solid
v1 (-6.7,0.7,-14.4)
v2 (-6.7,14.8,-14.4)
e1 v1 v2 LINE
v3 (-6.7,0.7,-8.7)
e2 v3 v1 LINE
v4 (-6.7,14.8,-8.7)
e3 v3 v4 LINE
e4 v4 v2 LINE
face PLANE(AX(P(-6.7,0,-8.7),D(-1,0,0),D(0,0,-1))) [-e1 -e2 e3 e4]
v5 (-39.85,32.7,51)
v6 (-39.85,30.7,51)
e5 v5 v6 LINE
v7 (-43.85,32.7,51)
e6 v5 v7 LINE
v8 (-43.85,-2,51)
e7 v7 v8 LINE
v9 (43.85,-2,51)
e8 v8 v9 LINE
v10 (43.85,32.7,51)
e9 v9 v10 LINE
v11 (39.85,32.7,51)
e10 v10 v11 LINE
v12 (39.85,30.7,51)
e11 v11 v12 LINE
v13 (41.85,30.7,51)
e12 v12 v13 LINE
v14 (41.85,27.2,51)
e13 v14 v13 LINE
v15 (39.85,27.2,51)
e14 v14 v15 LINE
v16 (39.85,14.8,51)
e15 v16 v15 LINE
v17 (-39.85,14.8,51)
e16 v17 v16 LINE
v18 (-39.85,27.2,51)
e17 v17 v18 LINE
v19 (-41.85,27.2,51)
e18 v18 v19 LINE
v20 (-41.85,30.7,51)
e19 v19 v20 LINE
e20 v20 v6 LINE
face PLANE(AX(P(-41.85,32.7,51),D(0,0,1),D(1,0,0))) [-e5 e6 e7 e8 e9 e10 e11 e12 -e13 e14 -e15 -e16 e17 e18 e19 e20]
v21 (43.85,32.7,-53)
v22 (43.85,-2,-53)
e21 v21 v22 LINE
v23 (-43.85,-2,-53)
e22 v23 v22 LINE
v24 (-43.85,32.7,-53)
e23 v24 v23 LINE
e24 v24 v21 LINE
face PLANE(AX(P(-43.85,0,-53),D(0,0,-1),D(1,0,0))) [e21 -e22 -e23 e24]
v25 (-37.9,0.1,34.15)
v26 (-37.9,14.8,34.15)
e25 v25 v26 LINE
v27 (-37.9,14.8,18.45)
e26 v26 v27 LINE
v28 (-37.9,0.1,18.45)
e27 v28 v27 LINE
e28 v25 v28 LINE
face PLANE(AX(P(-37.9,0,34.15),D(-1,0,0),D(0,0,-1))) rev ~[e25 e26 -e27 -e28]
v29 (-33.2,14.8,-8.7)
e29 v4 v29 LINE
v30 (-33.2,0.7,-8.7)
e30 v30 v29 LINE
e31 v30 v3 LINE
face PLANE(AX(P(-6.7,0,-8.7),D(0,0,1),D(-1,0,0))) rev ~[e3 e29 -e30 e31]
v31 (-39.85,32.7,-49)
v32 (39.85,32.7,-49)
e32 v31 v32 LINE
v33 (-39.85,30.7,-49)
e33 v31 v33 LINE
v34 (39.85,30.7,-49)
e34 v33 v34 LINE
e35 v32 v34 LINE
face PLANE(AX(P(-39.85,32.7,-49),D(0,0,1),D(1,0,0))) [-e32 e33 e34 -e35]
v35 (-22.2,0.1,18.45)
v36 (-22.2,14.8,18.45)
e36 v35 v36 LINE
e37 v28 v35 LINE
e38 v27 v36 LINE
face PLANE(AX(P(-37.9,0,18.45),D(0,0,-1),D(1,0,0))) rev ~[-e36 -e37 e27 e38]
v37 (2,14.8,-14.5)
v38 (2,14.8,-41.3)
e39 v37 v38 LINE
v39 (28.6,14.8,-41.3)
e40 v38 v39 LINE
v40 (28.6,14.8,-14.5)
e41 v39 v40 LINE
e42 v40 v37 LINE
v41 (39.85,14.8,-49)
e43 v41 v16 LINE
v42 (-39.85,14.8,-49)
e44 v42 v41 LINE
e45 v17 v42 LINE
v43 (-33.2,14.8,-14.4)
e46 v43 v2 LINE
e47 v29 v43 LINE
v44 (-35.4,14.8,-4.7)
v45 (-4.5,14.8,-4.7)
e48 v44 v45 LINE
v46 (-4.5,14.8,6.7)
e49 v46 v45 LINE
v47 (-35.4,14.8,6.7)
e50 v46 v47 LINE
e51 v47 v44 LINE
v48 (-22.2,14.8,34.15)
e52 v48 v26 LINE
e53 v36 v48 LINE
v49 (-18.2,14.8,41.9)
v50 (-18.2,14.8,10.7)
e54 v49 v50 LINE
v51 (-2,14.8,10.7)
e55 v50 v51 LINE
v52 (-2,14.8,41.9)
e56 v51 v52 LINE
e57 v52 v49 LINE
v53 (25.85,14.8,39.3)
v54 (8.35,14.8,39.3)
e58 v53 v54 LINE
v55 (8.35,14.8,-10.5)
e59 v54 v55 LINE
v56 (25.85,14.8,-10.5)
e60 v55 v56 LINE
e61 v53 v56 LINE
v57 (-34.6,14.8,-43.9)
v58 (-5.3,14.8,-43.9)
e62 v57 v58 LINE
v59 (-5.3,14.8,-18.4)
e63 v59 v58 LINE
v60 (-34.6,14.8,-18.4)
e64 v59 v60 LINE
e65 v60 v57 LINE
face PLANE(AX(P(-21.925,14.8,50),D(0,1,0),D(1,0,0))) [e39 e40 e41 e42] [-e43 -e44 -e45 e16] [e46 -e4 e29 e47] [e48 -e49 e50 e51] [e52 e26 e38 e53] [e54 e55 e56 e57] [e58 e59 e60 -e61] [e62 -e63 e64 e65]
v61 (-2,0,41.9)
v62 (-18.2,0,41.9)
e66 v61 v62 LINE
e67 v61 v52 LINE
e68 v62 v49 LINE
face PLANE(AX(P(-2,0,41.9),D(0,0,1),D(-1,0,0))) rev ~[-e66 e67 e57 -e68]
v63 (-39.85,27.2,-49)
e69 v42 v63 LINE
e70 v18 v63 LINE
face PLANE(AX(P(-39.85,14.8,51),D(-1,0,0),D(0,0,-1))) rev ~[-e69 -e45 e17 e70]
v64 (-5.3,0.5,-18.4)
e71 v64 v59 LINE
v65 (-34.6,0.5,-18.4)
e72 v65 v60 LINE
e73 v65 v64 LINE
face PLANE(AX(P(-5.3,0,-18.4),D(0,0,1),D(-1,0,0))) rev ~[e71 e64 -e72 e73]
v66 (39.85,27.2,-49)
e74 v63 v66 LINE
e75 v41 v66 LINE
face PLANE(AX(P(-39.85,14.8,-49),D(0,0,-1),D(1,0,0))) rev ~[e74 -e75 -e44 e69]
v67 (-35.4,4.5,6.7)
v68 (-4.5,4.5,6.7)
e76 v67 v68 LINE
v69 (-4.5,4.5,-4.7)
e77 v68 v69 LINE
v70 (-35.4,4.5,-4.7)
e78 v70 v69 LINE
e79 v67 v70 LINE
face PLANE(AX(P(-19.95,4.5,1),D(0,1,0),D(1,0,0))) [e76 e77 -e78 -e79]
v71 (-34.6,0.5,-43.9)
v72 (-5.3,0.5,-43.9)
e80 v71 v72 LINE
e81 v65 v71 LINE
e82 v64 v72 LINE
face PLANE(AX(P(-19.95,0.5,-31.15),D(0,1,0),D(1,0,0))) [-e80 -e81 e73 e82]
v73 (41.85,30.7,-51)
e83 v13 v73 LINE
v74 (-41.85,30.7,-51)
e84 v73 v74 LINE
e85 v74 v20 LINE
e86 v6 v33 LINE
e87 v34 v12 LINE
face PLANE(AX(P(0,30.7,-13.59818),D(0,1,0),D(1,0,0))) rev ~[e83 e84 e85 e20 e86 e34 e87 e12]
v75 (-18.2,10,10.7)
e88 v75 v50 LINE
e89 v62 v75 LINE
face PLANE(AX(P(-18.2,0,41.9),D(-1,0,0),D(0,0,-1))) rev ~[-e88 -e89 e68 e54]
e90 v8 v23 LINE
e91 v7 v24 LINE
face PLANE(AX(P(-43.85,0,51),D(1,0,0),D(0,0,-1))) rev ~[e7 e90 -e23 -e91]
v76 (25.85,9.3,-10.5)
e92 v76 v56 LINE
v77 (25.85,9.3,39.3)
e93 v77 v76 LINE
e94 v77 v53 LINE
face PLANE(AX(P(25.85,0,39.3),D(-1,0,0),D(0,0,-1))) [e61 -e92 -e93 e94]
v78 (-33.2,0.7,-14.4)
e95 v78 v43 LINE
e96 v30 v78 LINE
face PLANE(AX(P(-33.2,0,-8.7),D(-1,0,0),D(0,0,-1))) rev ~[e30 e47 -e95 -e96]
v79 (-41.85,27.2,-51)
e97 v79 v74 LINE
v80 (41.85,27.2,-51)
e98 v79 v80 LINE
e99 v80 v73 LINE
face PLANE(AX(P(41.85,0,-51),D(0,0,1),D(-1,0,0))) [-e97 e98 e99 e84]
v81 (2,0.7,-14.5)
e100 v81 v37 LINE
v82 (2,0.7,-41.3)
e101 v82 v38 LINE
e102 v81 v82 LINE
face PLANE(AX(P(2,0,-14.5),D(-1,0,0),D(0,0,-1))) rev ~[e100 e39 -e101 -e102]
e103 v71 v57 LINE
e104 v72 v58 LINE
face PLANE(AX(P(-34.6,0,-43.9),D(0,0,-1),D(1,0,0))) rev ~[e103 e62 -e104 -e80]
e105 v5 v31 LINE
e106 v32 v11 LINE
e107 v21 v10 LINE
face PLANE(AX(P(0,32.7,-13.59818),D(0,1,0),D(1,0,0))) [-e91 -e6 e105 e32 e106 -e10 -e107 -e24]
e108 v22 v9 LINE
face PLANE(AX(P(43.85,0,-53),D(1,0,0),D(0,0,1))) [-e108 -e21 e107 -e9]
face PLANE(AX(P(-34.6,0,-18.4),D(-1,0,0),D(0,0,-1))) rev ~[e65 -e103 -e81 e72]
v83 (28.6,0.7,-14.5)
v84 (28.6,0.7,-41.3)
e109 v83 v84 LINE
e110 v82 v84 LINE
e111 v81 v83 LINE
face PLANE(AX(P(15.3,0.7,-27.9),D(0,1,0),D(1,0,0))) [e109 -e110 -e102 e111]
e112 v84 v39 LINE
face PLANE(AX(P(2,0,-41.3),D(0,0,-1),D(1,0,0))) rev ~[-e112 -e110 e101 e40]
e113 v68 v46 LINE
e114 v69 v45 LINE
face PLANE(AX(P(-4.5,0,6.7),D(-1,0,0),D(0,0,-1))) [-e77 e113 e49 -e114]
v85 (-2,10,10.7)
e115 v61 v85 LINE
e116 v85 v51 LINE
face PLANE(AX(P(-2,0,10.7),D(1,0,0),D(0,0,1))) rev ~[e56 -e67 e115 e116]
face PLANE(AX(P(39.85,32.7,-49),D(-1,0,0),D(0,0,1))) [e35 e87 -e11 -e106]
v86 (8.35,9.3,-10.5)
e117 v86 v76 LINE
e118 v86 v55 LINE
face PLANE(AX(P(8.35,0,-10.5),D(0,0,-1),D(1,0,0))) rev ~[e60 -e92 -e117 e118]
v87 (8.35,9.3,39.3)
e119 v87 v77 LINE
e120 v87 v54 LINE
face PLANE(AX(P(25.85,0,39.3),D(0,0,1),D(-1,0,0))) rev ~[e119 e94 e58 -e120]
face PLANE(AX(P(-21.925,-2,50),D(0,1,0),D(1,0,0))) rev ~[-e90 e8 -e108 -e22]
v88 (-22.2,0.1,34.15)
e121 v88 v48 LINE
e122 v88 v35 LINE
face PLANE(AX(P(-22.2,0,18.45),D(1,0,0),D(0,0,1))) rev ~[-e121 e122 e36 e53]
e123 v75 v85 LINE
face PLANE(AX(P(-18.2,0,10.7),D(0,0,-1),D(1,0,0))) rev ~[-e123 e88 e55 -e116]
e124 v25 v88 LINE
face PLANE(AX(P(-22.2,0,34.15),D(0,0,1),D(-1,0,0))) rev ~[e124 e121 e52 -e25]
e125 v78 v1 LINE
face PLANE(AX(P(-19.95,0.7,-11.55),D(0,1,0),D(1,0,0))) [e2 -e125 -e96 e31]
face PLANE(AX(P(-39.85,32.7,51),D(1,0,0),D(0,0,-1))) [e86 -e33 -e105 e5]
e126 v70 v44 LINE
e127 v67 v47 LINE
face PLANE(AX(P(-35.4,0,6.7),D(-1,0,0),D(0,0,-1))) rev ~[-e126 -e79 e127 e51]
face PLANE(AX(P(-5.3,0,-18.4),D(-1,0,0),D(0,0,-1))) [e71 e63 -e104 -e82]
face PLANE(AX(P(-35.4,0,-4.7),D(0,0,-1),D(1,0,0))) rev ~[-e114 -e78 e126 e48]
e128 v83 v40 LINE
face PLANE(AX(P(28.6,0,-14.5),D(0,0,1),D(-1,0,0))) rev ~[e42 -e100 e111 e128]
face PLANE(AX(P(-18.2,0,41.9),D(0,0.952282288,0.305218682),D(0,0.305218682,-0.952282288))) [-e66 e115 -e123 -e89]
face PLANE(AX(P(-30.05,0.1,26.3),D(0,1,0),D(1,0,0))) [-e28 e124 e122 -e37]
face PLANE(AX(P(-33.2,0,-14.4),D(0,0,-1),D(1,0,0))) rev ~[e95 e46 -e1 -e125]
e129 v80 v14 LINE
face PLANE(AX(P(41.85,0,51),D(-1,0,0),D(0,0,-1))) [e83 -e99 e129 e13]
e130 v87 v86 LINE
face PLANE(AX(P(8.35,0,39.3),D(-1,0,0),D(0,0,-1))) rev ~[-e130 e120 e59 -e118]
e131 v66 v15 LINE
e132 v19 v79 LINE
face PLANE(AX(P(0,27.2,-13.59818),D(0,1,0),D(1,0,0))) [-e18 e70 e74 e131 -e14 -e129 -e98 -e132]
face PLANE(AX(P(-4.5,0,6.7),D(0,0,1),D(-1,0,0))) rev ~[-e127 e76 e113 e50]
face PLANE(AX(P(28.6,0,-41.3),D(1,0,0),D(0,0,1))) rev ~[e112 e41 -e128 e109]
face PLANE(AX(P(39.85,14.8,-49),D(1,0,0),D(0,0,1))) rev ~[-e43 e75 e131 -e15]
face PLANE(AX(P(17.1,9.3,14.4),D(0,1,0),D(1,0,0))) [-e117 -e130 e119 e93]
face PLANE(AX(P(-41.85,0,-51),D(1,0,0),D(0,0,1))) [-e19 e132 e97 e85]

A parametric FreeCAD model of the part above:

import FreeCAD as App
import Part
import Sketcher

V = App.Vector

doc = App.newDocument("Part")
body = doc.addObject("PartDesign::Body", "Body")

# Sketch on XZ plane
sketch1 = doc.addObject("Sketcher::SketchObject", "Sketch")
body.addObject(sketch1)
sketch1.AttachmentSupport = (doc.XZ_Plane, [""])
sketch1.MapMode = "FlatFace"
sketch1.addGeometry(Part.LineSegment(V(-33.2, -14.4, 0), V(-33.2, -8.7, 0)), False)
sketch1.addGeometry(Part.LineSegment(V(-33.2, -8.7, 0), V(-6.7, -8.7, 0)), False)
sketch1.addGeometry(Part.LineSegment(V(-6.7, -8.7, 0), V(-6.7, -14.4, 0)), False)
sketch1.addGeometry(Part.LineSegment(V(-6.7, -14.4, 0), V(-33.2, -14.4, 0)), False)
sketch1.addConstraint(Sketcher.Constraint("Coincident", 0, 2, 1, 1))
sketch1.addConstraint(Sketcher.Constraint("Coincident", 1, 2, 2, 1))
sketch1.addConstraint(Sketcher.Constraint("Coincident", 2, 2, 3, 1))
sketch1.addConstraint(Sketcher.Constraint("Coincident", 3, 2, 0, 1))
sketch1.addConstraint(Sketcher.Constraint("Vertical", 0))
sketch1.addConstraint(Sketcher.Constraint("Horizontal", 1))
sketch1.addConstraint(Sketcher.Constraint("Vertical", 2))
sketch1.addConstraint(Sketcher.Constraint("Horizontal", 3))
sketch1.addConstraint(Sketcher.Constraint("DistanceX", 1, 1, 1, 2, 26.5))
sketch1.addConstraint(Sketcher.Constraint("DistanceY", 0, 1, 0, 2, 5.7))
sketch1.addConstraint(Sketcher.Constraint("DistanceX", 0, 2, -1, 1, 33.2))
sketch1.addConstraint(Sketcher.Constraint("DistanceY", 0, 2, -1, 1, 8.7))
pad1 = doc.addObject("PartDesign::Pad", "Pad")
body.addObject(pad1)
pad1.Profile = sketch1
pad1.Length = 0.7
pad1.Reversed = True
body2 = doc.addObject("PartDesign::Body", "Body001")

# Sketch on XZ plane
sketch2 = doc.addObject("Sketcher::SketchObject", "Sketch001")
body2.addObject(sketch2)
sketch2.AttachmentSupport = (doc.getObject("XZ_Plane001"), [""])
sketch2.MapMode = "FlatFace"
sketch2.addGeometry(Part.LineSegment(V(-35.4, -4.7, 0), V(-35.4, 6.7, 0)), False)
sketch2.addGeometry(Part.LineSegment(V(-35.4, 6.7, 0), V(-4.5, 6.7, 0)), False)
sketch2.addGeometry(Part.LineSegment(V(-4.5, 6.7, 0), V(-4.5, -4.7, 0)), False)
sketch2.addGeometry(Part.LineSegment(V(-4.5, -4.7, 0), V(-35.4, -4.7, 0)), False)
sketch2.addConstraint(Sketcher.Constraint("Coincident", 0, 2, 1, 1))
sketch2.addConstraint(Sketcher.Constraint("Coincident", 1, 2, 2, 1))
sketch2.addConstraint(Sketcher.Constraint("Coincident", 2, 2, 3, 1))
sketch2.addConstraint(Sketcher.Constraint("Coincident", 3, 2, 0, 1))
sketch2.addConstraint(Sketcher.Constraint("Vertical", 0))
sketch2.addConstraint(Sketcher.Constraint("Horizontal", 1))
sketch2.addConstraint(Sketcher.Constraint("Vertical", 2))
sketch2.addConstraint(Sketcher.Constraint("Horizontal", 3))
sketch2.addConstraint(Sketcher.Constraint("DistanceX", 1, 1, 1, 2, 30.9))
sketch2.addConstraint(Sketcher.Constraint("DistanceY", 0, 1, 0, 2, 11.4))
sketch2.addConstraint(Sketcher.Constraint("DistanceX", 0, 2, -1, 1, 35.4))
sketch2.addConstraint(Sketcher.Constraint("DistanceY", -1, 1, 0, 2, 6.7))
pad2 = doc.addObject("PartDesign::Pad", "Pad001")
body2.addObject(pad2)
pad2.Profile = sketch2
pad2.Length = 4.5
pad2.Reversed = True
body3 = doc.addObject("PartDesign::Body", "Body002")

# Sketch on XZ plane
sketch3 = doc.addObject("Sketcher::SketchObject", "Sketch002")
body3.addObject(sketch3)
sketch3.AttachmentSupport = (doc.getObject("XZ_Plane002"), [""])
sketch3.MapMode = "FlatFace"
sketch3.addGeometry(Part.LineSegment(V(-34.6, -43.9, 0), V(-34.6, -18.4, 0)), False)
sketch3.addGeometry(Part.LineSegment(V(-34.6, -18.4, 0), V(-5.3, -18.4, 0)), False)
sketch3.addGeometry(Part.LineSegment(V(-5.3, -18.4, 0), V(-5.3, -43.9, 0)), False)
sketch3.addGeometry(Part.LineSegment(V(-5.3, -43.9, 0), V(-34.6, -43.9, 0)), False)
sketch3.addConstraint(Sketcher.Constraint("Coincident", 0, 2, 1, 1))
sketch3.addConstraint(Sketcher.Constraint("Coincident", 1, 2, 2, 1))
sketch3.addConstraint(Sketcher.Constraint("Coincident", 2, 2, 3, 1))
sketch3.addConstraint(Sketcher.Constraint("Coincident", 3, 2, 0, 1))
sketch3.addConstraint(Sketcher.Constraint("Vertical", 0))
sketch3.addConstraint(Sketcher.Constraint("Horizontal", 1))
sketch3.addConstraint(Sketcher.Constraint("Vertical", 2))
sketch3.addConstraint(Sketcher.Constraint("Horizontal", 3))
sketch3.addConstraint(Sketcher.Constraint("DistanceX", 1, 1, 1, 2, 29.3))
sketch3.addConstraint(Sketcher.Constraint("DistanceY", 0, 1, 0, 2, 25.5))
sketch3.addConstraint(Sketcher.Constraint("DistanceX", 0, 2, -1, 1, 34.6))
sketch3.addConstraint(Sketcher.Constraint("DistanceY", 0, 2, -1, 1, 18.4))
pad3 = doc.addObject("PartDesign::Pad", "Pad002")
body3.addObject(pad3)
pad3.Profile = sketch3
pad3.Length = 0.5
pad3.Reversed = True
body4 = doc.addObject("PartDesign::Body", "Body003")

# Sketch on XZ plane
sketch4 = doc.addObject("Sketcher::SketchObject", "Sketch003")
body4.addObject(sketch4)
sketch4.AttachmentSupport = (doc.getObject("XZ_Plane003"), [""])
sketch4.MapMode = "FlatFace"
sketch4.addGeometry(Part.LineSegment(V(-37.9, 18.45, 0), V(-37.9, 34.15, 0)), False)
sketch4.addGeometry(Part.LineSegment(V(-37.9, 34.15, 0), V(-22.2, 34.15, 0)), False)
sketch4.addGeometry(Part.LineSegment(V(-22.2, 34.15, 0), V(-22.2, 18.45, 0)), False)
sketch4.addGeometry(Part.LineSegment(V(-22.2, 18.45, 0), V(-37.9, 18.45, 0)), False)
sketch4.addConstraint(Sketcher.Constraint("Coincident", 0, 2, 1, 1))
sketch4.addConstraint(Sketcher.Constraint("Coincident", 1, 2, 2, 1))
sketch4.addConstraint(Sketcher.Constraint("Coincident", 2, 2, 3, 1))
sketch4.addConstraint(Sketcher.Constraint("Coincident", 3, 2, 0, 1))
sketch4.addConstraint(Sketcher.Constraint("Vertical", 0))
sketch4.addConstraint(Sketcher.Constraint("Horizontal", 1))
sketch4.addConstraint(Sketcher.Constraint("Vertical", 2))
sketch4.addConstraint(Sketcher.Constraint("Horizontal", 3))
sketch4.addConstraint(Sketcher.Constraint("Equal", 3, 0))
sketch4.addConstraint(Sketcher.Constraint("DistanceX", 1, 1, 1, 2, 15.7))
sketch4.addConstraint(Sketcher.Constraint("DistanceX", 0, 2, -1, 1, 37.9))
sketch4.addConstraint(Sketcher.Constraint("DistanceY", -1, 1, 0, 2, 34.15))
pad4 = doc.addObject("PartDesign::Pad", "Pad003")
body4.addObject(pad4)
pad4.Profile = sketch4
pad4.Length = 0.1
pad4.Reversed = True
body5 = doc.addObject("PartDesign::Body", "Body004")

# Sketch on XZ plane
sketch5 = doc.addObject("Sketcher::SketchObject", "Sketch004")
body5.addObject(sketch5)
sketch5.AttachmentSupport = (doc.getObject("XZ_Plane004"), [""])
sketch5.MapMode = "FlatFace"
sketch5.addGeometry(Part.LineSegment(V(8.35, -10.5, 0), V(8.35, 39.3, 0)), False)
sketch5.addGeometry(Part.LineSegment(V(8.35, 39.3, 0), V(25.85, 39.3, 0)), False)
sketch5.addGeometry(Part.LineSegment(V(25.85, 39.3, 0), V(25.85, -10.5, 0)), False)
sketch5.addGeometry(Part.LineSegment(V(25.85, -10.5, 0), V(8.35, -10.5, 0)), False)
sketch5.addConstraint(Sketcher.Constraint("Coincident", 0, 2, 1, 1))
sketch5.addConstraint(Sketcher.Constraint("Coincident", 1, 2, 2, 1))
sketch5.addConstraint(Sketcher.Constraint("Coincident", 2, 2, 3, 1))
sketch5.addConstraint(Sketcher.Constraint("Coincident", 3, 2, 0, 1))
sketch5.addConstraint(Sketcher.Constraint("Vertical", 0))
sketch5.addConstraint(Sketcher.Constraint("Horizontal", 1))
sketch5.addConstraint(Sketcher.Constraint("Vertical", 2))
sketch5.addConstraint(Sketcher.Constraint("Horizontal", 3))
sketch5.addConstraint(Sketcher.Constraint("DistanceX", 1, 1, 1, 2, 17.5))
sketch5.addConstraint(Sketcher.Constraint("DistanceY", 0, 1, 0, 2, 49.8))
sketch5.addConstraint(Sketcher.Constraint("DistanceY", -1, 1, 0, 2, 39.3))
sketch5.addConstraint(Sketcher.Constraint("DistanceX", -1, 1, 0, 2, 8.35))
pad5 = doc.addObject("PartDesign::Pad", "Pad004")
body5.addObject(pad5)
pad5.Profile = sketch5
pad5.Length = 9.3
pad5.Reversed = True
body6 = doc.addObject("PartDesign::Body", "Body005")

# Sketch on XZ plane
sketch6 = doc.addObject("Sketcher::SketchObject", "Sketch005")
body6.addObject(sketch6)
sketch6.AttachmentSupport = (doc.getObject("XZ_Plane005"), [""])
sketch6.MapMode = "FlatFace"
sketch6.addGeometry(Part.LineSegment(V(2, -41.3, 0), V(2, -14.5, 0)), False)
sketch6.addGeometry(Part.LineSegment(V(2, -14.5, 0), V(28.6, -14.5, 0)), False)
sketch6.addGeometry(Part.LineSegment(V(28.6, -14.5, 0), V(28.6, -41.3, 0)), False)
sketch6.addGeometry(Part.LineSegment(V(28.6, -41.3, 0), V(2, -41.3, 0)), False)
sketch6.addConstraint(Sketcher.Constraint("Coincident", 0, 2, 1, 1))
sketch6.addConstraint(Sketcher.Constraint("Coincident", 1, 2, 2, 1))
sketch6.addConstraint(Sketcher.Constraint("Coincident", 2, 2, 3, 1))
sketch6.addConstraint(Sketcher.Constraint("Coincident", 3, 2, 0, 1))
sketch6.addConstraint(Sketcher.Constraint("Vertical", 0))
sketch6.addConstraint(Sketcher.Constraint("Horizontal", 1))
sketch6.addConstraint(Sketcher.Constraint("Vertical", 2))
sketch6.addConstraint(Sketcher.Constraint("Horizontal", 3))
sketch6.addConstraint(Sketcher.Constraint("DistanceX", 1, 1, 1, 2, 26.6))
sketch6.addConstraint(Sketcher.Constraint("DistanceY", 0, 1, 0, 2, 26.8))
sketch6.addConstraint(Sketcher.Constraint("DistanceX", -1, 1, 0, 2, 2.0))
sketch6.addConstraint(Sketcher.Constraint("DistanceY", 0, 2, -1, 1, 14.5))
pad6 = doc.addObject("PartDesign::Pad", "Pad005")
body6.addObject(pad6)
pad6.Profile = sketch6
pad6.Length = 0.7
pad6.Reversed = True
body.AllowCompound = True
doc.recompute()

boolean = doc.addObject("PartDesign::Boolean", "Boolean")
body.addObject(boolean)
boolean.Type = "Fuse"
boolean.addObjects([body2])
doc.recompute()

boolean2 = doc.addObject("PartDesign::Boolean", "Boolean001")
body.addObject(boolean2)
boolean2.Type = "Fuse"
boolean2.addObjects([body3])
doc.recompute()

boolean3 = doc.addObject("PartDesign::Boolean", "Boolean002")
body.addObject(boolean3)
boolean3.Type = "Fuse"
boolean3.addObjects([body4])
doc.recompute()

boolean4 = doc.addObject("PartDesign::Boolean", "Boolean003")
body.addObject(boolean4)
boolean4.Type = "Fuse"
boolean4.addObjects([body5])
doc.recompute()

boolean5 = doc.addObject("PartDesign::Boolean", "Boolean004")
body.addObject(boolean5)
boolean5.Type = "Fuse"
boolean5.addObjects([body6])

# Sketch on XZ plane
sketch7 = doc.addObject("Sketcher::SketchObject", "Sketch006")
body.addObject(sketch7)
sketch7.AttachmentSupport = (doc.XZ_Plane, [""])
sketch7.MapMode = "FlatFace"
sketch7.addGeometry(Part.LineSegment(V(-41.85, -51, 0), V(-41.85, 49, 0)), False)
sketch7.addGeometry(Part.LineSegment(V(-41.85, 49, 0), V(41.85, 49, 0)), False)
sketch7.addGeometry(Part.LineSegment(V(41.85, 49, 0), V(41.85, -51, 0)), False)
sketch7.addGeometry(Part.LineSegment(V(41.85, -51, 0), V(-41.85, -51, 0)), False)
sketch7.addGeometry(Part.LineSegment(V(-18.2, 41.9, 0), V(-18.2, 10.7, 0)), False)
sketch7.addGeometry(Part.LineSegment(V(-18.2, 10.7, 0), V(-2, 10.7, 0)), False)
sketch7.addGeometry(Part.LineSegment(V(-2, 10.7, 0), V(-2, 41.9, 0)), False)
sketch7.addGeometry(Part.LineSegment(V(-2, 41.9, 0), V(-18.2, 41.9, 0)), False)
sketch7.addGeometry(Part.LineSegment(V(8.35, -10.5, 0), V(25.85, -10.5, 0)), False)
sketch7.addGeometry(Part.LineSegment(V(25.85, -10.5, 0), V(25.85, 39.3, 0)), False)
sketch7.addGeometry(Part.LineSegment(V(25.85, 39.3, 0), V(8.35, 39.3, 0)), False)
sketch7.addGeometry(Part.LineSegment(V(8.35, 39.3, 0), V(8.35, -10.5, 0)), False)
sketch7.addGeometry(Part.LineSegment(V(2, -14.5, 0), V(2, -41.3, 0)), False)
sketch7.addGeometry(Part.LineSegment(V(2, -41.3, 0), V(28.6, -41.3, 0)), False)
sketch7.addGeometry(Part.LineSegment(V(28.6, -41.3, 0), V(28.6, -14.5, 0)), False)
sketch7.addGeometry(Part.LineSegment(V(28.6, -14.5, 0), V(2, -14.5, 0)), False)
sketch7.addGeometry(Part.LineSegment(V(-5.3, -18.4, 0), V(-34.6, -18.4, 0)), False)
sketch7.addGeometry(Part.LineSegment(V(-34.6, -18.4, 0), V(-34.6, -43.9, 0)), False)
sketch7.addGeometry(Part.LineSegment(V(-34.6, -43.9, 0), V(-5.3, -43.9, 0)), False)
sketch7.addGeometry(Part.LineSegment(V(-5.3, -43.9, 0), V(-5.3, -18.4, 0)), False)
sketch7.addGeometry(Part.LineSegment(V(-6.7, -8.7, 0), V(-33.2, -8.7, 0)), False)
sketch7.addGeometry(Part.LineSegment(V(-33.2, -8.7, 0), V(-33.2, -14.4, 0)), False)
sketch7.addGeometry(Part.LineSegment(V(-33.2, -14.4, 0), V(-6.7, -14.4, 0)), False)
sketch7.addGeometry(Part.LineSegment(V(-6.7, -14.4, 0), V(-6.7, -8.7, 0)), False)
sketch7.addGeometry(Part.LineSegment(V(-4.5, 6.7, 0), V(-35.4, 6.7, 0)), False)
sketch7.addGeometry(Part.LineSegment(V(-35.4, 6.7, 0), V(-35.4, -4.7, 0)), False)
sketch7.addGeometry(Part.LineSegment(V(-35.4, -4.7, 0), V(-4.5, -4.7, 0)), False)
sketch7.addGeometry(Part.LineSegment(V(-4.5, -4.7, 0), V(-4.5, 6.7, 0)), False)
sketch7.addGeometry(Part.LineSegment(V(-22.2, 18.45, 0), V(-22.2, 34.15, 0)), False)
sketch7.addGeometry(Part.LineSegment(V(-22.2, 34.15, 0), V(-37.9, 34.15, 0)), False)
sketch7.addGeometry(Part.LineSegment(V(-37.9, 34.15, 0), V(-37.9, 18.45, 0)), False)
sketch7.addGeometry(Part.LineSegment(V(-37.9, 18.45, 0), V(-22.2, 18.45, 0)), False)
sketch7.addConstraint(Sketcher.Constraint("Coincident", 0, 2, 1, 1))
sketch7.addConstraint(Sketcher.Constraint("Coincident", 1, 2, 2, 1))
sketch7.addConstraint(Sketcher.Constraint("Coincident", 2, 2, 3, 1))
sketch7.addConstraint(Sketcher.Constraint("Coincident", 3, 2, 0, 1))
sketch7.addConstraint(Sketcher.Constraint("Coincident", 4, 2, 5, 1))
sketch7.addConstraint(Sketcher.Constraint("Coincident", 5, 2, 6, 1))
sketch7.addConstraint(Sketcher.Constraint("Coincident", 6, 2, 7, 1))
sketch7.addConstraint(Sketcher.Constraint("Coincident", 7, 2, 4, 1))
sketch7.addConstraint(Sketcher.Constraint("Coincident", 8, 2, 9, 1))
sketch7.addConstraint(Sketcher.Constraint("Coincident", 9, 2, 10, 1))
sketch7.addConstraint(Sketcher.Constraint("Coincident", 10, 2, 11, 1))
sketch7.addConstraint(Sketcher.Constraint("Coincident", 11, 2, 8, 1))
sketch7.addConstraint(Sketcher.Constraint("Coincident", 12, 2, 13, 1))
sketch7.addConstraint(Sketcher.Constraint("Coincident", 13, 2, 14, 1))
sketch7.addConstraint(Sketcher.Constraint("Coincident", 14, 2, 15, 1))
sketch7.addConstraint(Sketcher.Constraint("Coincident", 15, 2, 12, 1))
sketch7.addConstraint(Sketcher.Constraint("Coincident", 16, 2, 17, 1))
sketch7.addConstraint(Sketcher.Constraint("Coincident", 17, 2, 18, 1))
sketch7.addConstraint(Sketcher.Constraint("Coincident", 18, 2, 19, 1))
sketch7.addConstraint(Sketcher.Constraint("Coincident", 19, 2, 16, 1))
sketch7.addConstraint(Sketcher.Constraint("Coincident", 20, 2, 21, 1))
sketch7.addConstraint(Sketcher.Constraint("Coincident", 21, 2, 22, 1))
sketch7.addConstraint(Sketcher.Constraint("Coincident", 22, 2, 23, 1))
sketch7.addConstraint(Sketcher.Constraint("Coincident", 23, 2, 20, 1))
sketch7.addConstraint(Sketcher.Constraint("Coincident", 24, 2, 25, 1))
sketch7.addConstraint(Sketcher.Constraint("Coincident", 25, 2, 26, 1))
sketch7.addConstraint(Sketcher.Constraint("Coincident", 26, 2, 27, 1))
sketch7.addConstraint(Sketcher.Constraint("Coincident", 27, 2, 24, 1))
sketch7.addConstraint(Sketcher.Constraint("Coincident", 28, 2, 29, 1))
sketch7.addConstraint(Sketcher.Constraint("Coincident", 29, 2, 30, 1))
sketch7.addConstraint(Sketcher.Constraint("Coincident", 30, 2, 31, 1))
sketch7.addConstraint(Sketcher.Constraint("Coincident", 31, 2, 28, 1))
sketch7.addConstraint(Sketcher.Constraint("Vertical", 0))
sketch7.addConstraint(Sketcher.Constraint("Horizontal", 1))
sketch7.addConstraint(Sketcher.Constraint("Vertical", 2))
sketch7.addConstraint(Sketcher.Constraint("Horizontal", 3))
sketch7.addConstraint(Sketcher.Constraint("Vertical", 4))
sketch7.addConstraint(Sketcher.Constraint("Horizontal", 5))
sketch7.addConstraint(Sketcher.Constraint("Vertical", 6))
sketch7.addConstraint(Sketcher.Constraint("Horizontal", 7))
sketch7.addConstraint(Sketcher.Constraint("Horizontal", 8))
sketch7.addConstraint(Sketcher.Constraint("Vertical", 9))
sketch7.addConstraint(Sketcher.Constraint("Horizontal", 10))
sketch7.addConstraint(Sketcher.Constraint("Vertical", 11))
sketch7.addConstraint(Sketcher.Constraint("Vertical", 12))
sketch7.addConstraint(Sketcher.Constraint("Horizontal", 13))
sketch7.addConstraint(Sketcher.Constraint("Vertical", 14))
sketch7.addConstraint(Sketcher.Constraint("Horizontal", 15))
sketch7.addConstraint(Sketcher.Constraint("Horizontal", 16))
sketch7.addConstraint(Sketcher.Constraint("Vertical", 17))
sketch7.addConstraint(Sketcher.Constraint("Horizontal", 18))
sketch7.addConstraint(Sketcher.Constraint("Vertical", 19))
sketch7.addConstraint(Sketcher.Constraint("Horizontal", 20))
sketch7.addConstraint(Sketcher.Constraint("Vertical", 21))
sketch7.addConstraint(Sketcher.Constraint("Horizontal", 22))
sketch7.addConstraint(Sketcher.Constraint("Vertical", 23))
sketch7.addConstraint(Sketcher.Constraint("Horizontal", 24))
sketch7.addConstraint(Sketcher.Constraint("Vertical", 25))
sketch7.addConstraint(Sketcher.Constraint("Horizontal", 26))
sketch7.addConstraint(Sketcher.Constraint("Vertical", 27))
sketch7.addConstraint(Sketcher.Constraint("Vertical", 28))
sketch7.addConstraint(Sketcher.Constraint("Horizontal", 29))
sketch7.addConstraint(Sketcher.Constraint("Vertical", 30))
sketch7.addConstraint(Sketcher.Constraint("Horizontal", 31))
sketch7.addConstraint(Sketcher.Constraint("Equal", 31, 28))
sketch7.addConstraint(Sketcher.Constraint("DistanceY", 0, 1, 0, 2, 100.0))
sketch7.addConstraint(Sketcher.Constraint("DistanceX", 1, 1, 1, 2, 83.7))
sketch7.addConstraint(Sketcher.Constraint("DistanceX", 5, 1, 5, 2, 16.2))
sketch7.addConstraint(Sketcher.Constraint("DistanceX", 8, 1, 8, 2, 17.5))
sketch7.addConstraint(Sketcher.Constraint("DistanceX", 13, 1, 13, 2, 26.6))
sketch7.addConstraint(Sketcher.Constraint("DistanceX", 16, 2, 16, 1, 29.3))
sketch7.addConstraint(Sketcher.Constraint("DistanceX", 20, 2, 20, 1, 26.5))
sketch7.addConstraint(Sketcher.Constraint("DistanceX", 24, 2, 24, 1, 30.9))
sketch7.addConstraint(Sketcher.Constraint("DistanceX", 29, 2, 29, 1, 15.7))
sketch7.addConstraint(Sketcher.Constraint("DistanceY", 4, 2, 4, 1, 31.2))
sketch7.addConstraint(Sketcher.Constraint("DistanceY", 9, 1, 9, 2, 49.8))
sketch7.addConstraint(Sketcher.Constraint("DistanceY", 12, 2, 12, 1, 26.8))
sketch7.addConstraint(Sketcher.Constraint("DistanceY", 17, 2, 17, 1, 25.5))
sketch7.addConstraint(Sketcher.Constraint("DistanceY", 21, 2, 21, 1, 5.7))
sketch7.addConstraint(Sketcher.Constraint("DistanceY", 25, 2, 25, 1, 11.4))
sketch7.addConstraint(Sketcher.Constraint("DistanceY", -1, 1, 0, 2, 49.0))
sketch7.addConstraint(Sketcher.Constraint("DistanceX", 5, 2, -1, 1, 2.0))
sketch7.addConstraint(Sketcher.Constraint("DistanceX", -1, 1, 12, 2, 2.0))
sketch7.addConstraint(Sketcher.Constraint("DistanceX", 8, 2, 2, 2, 16.0))
sketch7.addConstraint(Sketcher.Constraint("DistanceY", 12, 2, 5, 2, 52.0))
sketch7.addConstraint(Sketcher.Constraint("DistanceY", 14, 2, 8, 2, 4.0))
sketch7.addConstraint(Sketcher.Constraint("DistanceX", 20, 2, 4, 2, 15.0))
sketch7.addConstraint(Sketcher.Constraint("DistanceY", 16, 2, 21, 2, 4.0))
sketch7.addConstraint(Sketcher.Constraint("DistanceY", 24, 2, 4, 2, 4.0))
sketch7.addConstraint(Sketcher.Constraint("DistanceY", 20, 2, 25, 2, 4.0))
sketch7.addConstraint(Sketcher.Constraint("DistanceX", 28, 2, 7, 2, 4.0))
sketch7.addConstraint(Sketcher.Constraint("DistanceY", -1, 1, 4, 2, 10.7))
sketch7.addConstraint(Sketcher.Constraint("DistanceX", 16, 2, -1, 1, 34.6))
sketch7.addConstraint(Sketcher.Constraint("DistanceX", 24, 2, -1, 1, 35.4))
sketch7.addConstraint(Sketcher.Constraint("DistanceX", 0, 2, -1, 1, 41.85))
sketch7.addConstraint(Sketcher.Constraint("DistanceY", -1, 1, 28, 2, 34.15))
pad7 = doc.addObject("PartDesign::Pad", "Pad006")
body.addObject(pad7)
pad7.Profile = sketch7
pad7.Length = 14.8
pad7.Reversed = True

# Sketch on XZ plane
sketch8 = doc.addObject("Sketcher::SketchObject", "Sketch007")
body.addObject(sketch8)
sketch8.AttachmentSupport = (doc.XZ_Plane, [""])
sketch8.MapMode = "FlatFace"
sketch8.addGeometry(Part.LineSegment(V(41.85, 51, 0), V(43.85, 51, 0)), False)
sketch8.addGeometry(Part.LineSegment(V(43.85, 51, 0), V(43.85, -53, 0)), False)
sketch8.addGeometry(Part.LineSegment(V(43.85, -53, 0), V(-43.85, -53, 0)), False)
sketch8.addGeometry(Part.LineSegment(V(-43.85, -53, 0), V(-43.85, 51, 0)), False)
sketch8.addGeometry(Part.LineSegment(V(-43.85, 51, 0), V(-41.85, 51, 0)), False)
sketch8.addGeometry(Part.LineSegment(V(-41.85, 51, 0), V(-41.85, 49, 0)), False)
sketch8.addGeometry(Part.LineSegment(V(-41.85, 49, 0), V(41.85, 49, 0)), False)
sketch8.addGeometry(Part.LineSegment(V(41.85, 49, 0), V(41.85, 51, 0)), False)
sketch8.addConstraint(Sketcher.Constraint("Coincident", 0, 2, 1, 1))
sketch8.addConstraint(Sketcher.Constraint("Coincident", 1, 2, 2, 1))
sketch8.addConstraint(Sketcher.Constraint("Coincident", 2, 2, 3, 1))
sketch8.addConstraint(Sketcher.Constraint("Coincident", 3, 2, 4, 1))
sketch8.addConstraint(Sketcher.Constraint("Coincident", 4, 2, 5, 1))
sketch8.addConstraint(Sketcher.Constraint("Coincident", 5, 2, 6, 1))
sketch8.addConstraint(Sketcher.Constraint("Coincident", 6, 2, 7, 1))
sketch8.addConstraint(Sketcher.Constraint("Coincident", 7, 2, 0, 1))
sketch8.addConstraint(Sketcher.Constraint("Horizontal", 0))
sketch8.addConstraint(Sketcher.Constraint("Vertical", 1))
sketch8.addConstraint(Sketcher.Constraint("Horizontal", 2))
sketch8.addConstraint(Sketcher.Constraint("Vertical", 3))
sketch8.addConstraint(Sketcher.Constraint("Horizontal", 4))
sketch8.addConstraint(Sketcher.Constraint("Vertical", 5))
sketch8.addConstraint(Sketcher.Constraint("Horizontal", 6))
sketch8.addConstraint(Sketcher.Constraint("Vertical", 7))
sketch8.addConstraint(Sketcher.Constraint("Symmetric", 0, 2, 3, 2, -2))
sketch8.addConstraint(Sketcher.Constraint("Equal", 0, 4))
sketch8.addConstraint(Sketcher.Constraint("Equal", 4, 5))
sketch8.addConstraint(Sketcher.Constraint("DistanceX", 0, 1, 0, 2, 2.0))
sketch8.addConstraint(Sketcher.Constraint("DistanceY", 1, 2, 1, 1, 104.0))
sketch8.addConstraint(Sketcher.Constraint("DistanceX", 2, 2, 2, 1, 87.7))
sketch8.addConstraint(Sketcher.Constraint("DistanceY", -1, 1, 0, 2, 51.0))
pad8 = doc.addObject("PartDesign::Pad", "Pad007")
body.addObject(pad8)
pad8.Profile = sketch8
pad8.Length = 2

# Sketch on XZ plane
sketch9 = doc.addObject("Sketcher::SketchObject", "Sketch008")
body.addObject(sketch9)
sketch9.AttachmentSupport = (doc.XZ_Plane, [""])
sketch9.MapMode = "FlatFace"
sketch9.addGeometry(Part.LineSegment(V(-41.85, 49, 0), V(-41.85, 51, 0)), False)
sketch9.addGeometry(Part.LineSegment(V(-41.85, 51, 0), V(41.85, 51, 0)), False)
sketch9.addGeometry(Part.LineSegment(V(41.85, 51, 0), V(41.85, 49, 0)), False)
sketch9.addGeometry(Part.LineSegment(V(41.85, 49, 0), V(-41.85, 49, 0)), False)
sketch9.addConstraint(Sketcher.Constraint("Coincident", 0, 2, 1, 1))
sketch9.addConstraint(Sketcher.Constraint("Coincident", 1, 2, 2, 1))
sketch9.addConstraint(Sketcher.Constraint("Coincident", 2, 2, 3, 1))
sketch9.addConstraint(Sketcher.Constraint("Coincident", 3, 2, 0, 1))
sketch9.addConstraint(Sketcher.Constraint("Vertical", 0))
sketch9.addConstraint(Sketcher.Constraint("Horizontal", 1))
sketch9.addConstraint(Sketcher.Constraint("Vertical", 2))
sketch9.addConstraint(Sketcher.Constraint("Horizontal", 3))
sketch9.addConstraint(Sketcher.Constraint("DistanceY", 0, 1, 0, 2, 2.0))
sketch9.addConstraint(Sketcher.Constraint("DistanceX", 1, 1, 1, 2, 83.7))
sketch9.addConstraint(Sketcher.Constraint("DistanceY", -1, 1, 0, 2, 51.0))
sketch9.addConstraint(Sketcher.Constraint("DistanceX", 0, 2, -1, 1, 41.85))
pad9 = doc.addObject("PartDesign::Pad", "Pad008")
body.addObject(pad9)
pad9.Profile = sketch9
pad9.Length = 2

# Sketch on XZ plane
sketch10 = doc.addObject("Sketcher::SketchObject", "Sketch009")
body.addObject(sketch10)
sketch10.AttachmentSupport = (doc.XZ_Plane, [""])
sketch10.MapMode = "FlatFace"
sketch10.addGeometry(Part.LineSegment(V(41.85, 51, 0), V(43.85, 51, 0)), False)
sketch10.addGeometry(Part.LineSegment(V(43.85, 51, 0), V(43.85, -53, 0)), False)
sketch10.addGeometry(Part.LineSegment(V(43.85, -53, 0), V(-43.85, -53, 0)), False)
sketch10.addGeometry(Part.LineSegment(V(-43.85, -53, 0), V(-43.85, 51, 0)), False)
sketch10.addGeometry(Part.LineSegment(V(-43.85, 51, 0), V(-41.85, 51, 0)), False)
sketch10.addGeometry(Part.LineSegment(V(-41.85, 51, 0), V(-41.85, -51, 0)), False)
sketch10.addGeometry(Part.LineSegment(V(-41.85, -51, 0), V(41.85, -51, 0)), False)
sketch10.addGeometry(Part.LineSegment(V(41.85, -51, 0), V(41.85, 51, 0)), False)
sketch10.addConstraint(Sketcher.Constraint("Coincident", 0, 2, 1, 1))
sketch10.addConstraint(Sketcher.Constraint("Coincident", 1, 2, 2, 1))
sketch10.addConstraint(Sketcher.Constraint("Coincident", 2, 2, 3, 1))
sketch10.addConstraint(Sketcher.Constraint("Coincident", 3, 2, 4, 1))
sketch10.addConstraint(Sketcher.Constraint("Coincident", 4, 2, 5, 1))
sketch10.addConstraint(Sketcher.Constraint("Coincident", 5, 2, 6, 1))
sketch10.addConstraint(Sketcher.Constraint("Coincident", 6, 2, 7, 1))
sketch10.addConstraint(Sketcher.Constraint("Coincident", 7, 2, 0, 1))
sketch10.addConstraint(Sketcher.Constraint("Horizontal", 0))
sketch10.addConstraint(Sketcher.Constraint("Vertical", 1))
sketch10.addConstraint(Sketcher.Constraint("Horizontal", 2))
sketch10.addConstraint(Sketcher.Constraint("Vertical", 3))
sketch10.addConstraint(Sketcher.Constraint("Horizontal", 4))
sketch10.addConstraint(Sketcher.Constraint("Vertical", 5))
sketch10.addConstraint(Sketcher.Constraint("Horizontal", 6))
sketch10.addConstraint(Sketcher.Constraint("Vertical", 7))
sketch10.addConstraint(Sketcher.Constraint("Symmetric", 4, 2, 6, 2, -1, 1))
sketch10.addConstraint(Sketcher.Constraint("Symmetric", 0, 2, 3, 2, -2))
sketch10.addConstraint(Sketcher.Constraint("DistanceX", 0, 1, 0, 2, 2.0))
sketch10.addConstraint(Sketcher.Constraint("DistanceY", 1, 2, 1, 1, 104.0))
sketch10.addConstraint(Sketcher.Constraint("DistanceY", 5, 2, 5, 1, 102.0))
sketch10.addConstraint(Sketcher.Constraint("DistanceX", 2, 2, 2, 1, 87.7))
pad10 = doc.addObject("PartDesign::Pad", "Pad009")
body.addObject(pad10)
pad10.Profile = sketch10
pad10.Length = 27.2
pad10.Reversed = True

# Sketch on XZ plane
sketch11 = doc.addObject("Sketcher::SketchObject", "Sketch010")
body.addObject(sketch11)
sketch11.AttachmentSupport = (doc.XZ_Plane, [""])
sketch11.MapMode = "FlatFace"
sketch11.addGeometry(Part.LineSegment(V(-41.85, 49, 0), V(-41.85, 51, 0)), False)
sketch11.addGeometry(Part.LineSegment(V(-41.85, 51, 0), V(41.85, 51, 0)), False)
sketch11.addGeometry(Part.LineSegment(V(41.85, 51, 0), V(41.85, 49, 0)), False)
sketch11.addGeometry(Part.LineSegment(V(41.85, 49, 0), V(-41.85, 49, 0)), False)
sketch11.addConstraint(Sketcher.Constraint("Coincident", 0, 2, 1, 1))
sketch11.addConstraint(Sketcher.Constraint("Coincident", 1, 2, 2, 1))
sketch11.addConstraint(Sketcher.Constraint("Coincident", 2, 2, 3, 1))
sketch11.addConstraint(Sketcher.Constraint("Coincident", 3, 2, 0, 1))
sketch11.addConstraint(Sketcher.Constraint("Vertical", 0))
sketch11.addConstraint(Sketcher.Constraint("Horizontal", 1))
sketch11.addConstraint(Sketcher.Constraint("Vertical", 2))
sketch11.addConstraint(Sketcher.Constraint("Horizontal", 3))
sketch11.addConstraint(Sketcher.Constraint("DistanceY", 0, 1, 0, 2, 2.0))
sketch11.addConstraint(Sketcher.Constraint("DistanceX", 1, 1, 1, 2, 83.7))
sketch11.addConstraint(Sketcher.Constraint("DistanceY", -1, 1, 0, 2, 51.0))
sketch11.addConstraint(Sketcher.Constraint("DistanceX", 0, 2, -1, 1, 41.85))
pad11 = doc.addObject("PartDesign::Pad", "Pad010")
body.addObject(pad11)
pad11.Profile = sketch11
pad11.Length = 14.8
pad11.Reversed = True

# Sketch on XZ plane
sketch12 = doc.addObject("Sketcher::SketchObject", "Sketch011")
body.addObject(sketch12)
sketch12.AttachmentSupport = (doc.XZ_Plane, [""])
sketch12.MapMode = "FlatFace"
sketch12.AttachmentOffset = App.Placement(V(0, 0, -14.8), App.Rotation())
sketch12.addGeometry(Part.LineSegment(V(-39.85, 51, 0), V(-39.85, -49, 0)), False)
sketch12.addGeometry(Part.LineSegment(V(-39.85, -49, 0), V(39.85, -49, 0)), False)
sketch12.addGeometry(Part.LineSegment(V(39.85, -49, 0), V(39.85, 51, 0)), False)
sketch12.addGeometry(Part.LineSegment(V(39.85, 51, 0), V(41.85, 51, 0)), False)
sketch12.addGeometry(Part.LineSegment(V(41.85, 51, 0), V(41.85, -51, 0)), False)
sketch12.addGeometry(Part.LineSegment(V(41.85, -51, 0), V(-41.85, -51, 0)), False)
sketch12.addGeometry(Part.LineSegment(V(-41.85, -51, 0), V(-41.85, 51, 0)), False)
sketch12.addGeometry(Part.LineSegment(V(-41.85, 51, 0), V(-39.85, 51, 0)), False)
sketch12.addConstraint(Sketcher.Constraint("Coincident", 0, 2, 1, 1))
sketch12.addConstraint(Sketcher.Constraint("Coincident", 1, 2, 2, 1))
sketch12.addConstraint(Sketcher.Constraint("Coincident", 2, 2, 3, 1))
sketch12.addConstraint(Sketcher.Constraint("Coincident", 3, 2, 4, 1))
sketch12.addConstraint(Sketcher.Constraint("Coincident", 4, 2, 5, 1))
sketch12.addConstraint(Sketcher.Constraint("Coincident", 5, 2, 6, 1))
sketch12.addConstraint(Sketcher.Constraint("Coincident", 6, 2, 7, 1))
sketch12.addConstraint(Sketcher.Constraint("Coincident", 7, 2, 0, 1))
sketch12.addConstraint(Sketcher.Constraint("Vertical", 0))
sketch12.addConstraint(Sketcher.Constraint("Horizontal", 1))
sketch12.addConstraint(Sketcher.Constraint("Vertical", 2))
sketch12.addConstraint(Sketcher.Constraint("Horizontal", 3))
sketch12.addConstraint(Sketcher.Constraint("Vertical", 4))
sketch12.addConstraint(Sketcher.Constraint("Horizontal", 5))
sketch12.addConstraint(Sketcher.Constraint("Vertical", 6))
sketch12.addConstraint(Sketcher.Constraint("Horizontal", 7))
sketch12.addConstraint(Sketcher.Constraint("Symmetric", 3, 2, 5, 2, -1, 1))
sketch12.addConstraint(Sketcher.Constraint("Symmetric", 2, 2, 7, 2, -2))
sketch12.addConstraint(Sketcher.Constraint("DistanceX", 3, 1, 3, 2, 2.0))
sketch12.addConstraint(Sketcher.Constraint("DistanceY", 0, 2, 0, 1, 100.0))
sketch12.addConstraint(Sketcher.Constraint("DistanceY", 4, 2, 4, 1, 102.0))
sketch12.addConstraint(Sketcher.Constraint("DistanceX", 1, 1, 1, 2, 79.7))
pad12 = doc.addObject("PartDesign::Pad", "Pad011")
body.addObject(pad12)
pad12.Profile = sketch12
pad12.Length = 12.4
pad12.Reversed = True

# Sketch on XZ plane
sketch13 = doc.addObject("Sketcher::SketchObject", "Sketch012")
body.addObject(sketch13)
sketch13.AttachmentSupport = (doc.XZ_Plane, [""])
sketch13.MapMode = "FlatFace"
sketch13.addGeometry(Part.LineSegment(V(41.85, 51, 0), V(43.85, 51, 0)), False)
sketch13.addGeometry(Part.LineSegment(V(43.85, 51, 0), V(43.85, -53, 0)), False)
sketch13.addGeometry(Part.LineSegment(V(43.85, -53, 0), V(-43.85, -53, 0)), False)
sketch13.addGeometry(Part.LineSegment(V(-43.85, -53, 0), V(-43.85, 51, 0)), False)
sketch13.addGeometry(Part.LineSegment(V(-43.85, 51, 0), V(-41.85, 51, 0)), False)
sketch13.addGeometry(Part.LineSegment(V(-41.85, 51, 0), V(-41.85, -51, 0)), False)
sketch13.addGeometry(Part.LineSegment(V(-41.85, -51, 0), V(41.85, -51, 0)), False)
sketch13.addGeometry(Part.LineSegment(V(41.85, -51, 0), V(41.85, 51, 0)), False)
sketch13.addConstraint(Sketcher.Constraint("Coincident", 0, 2, 1, 1))
sketch13.addConstraint(Sketcher.Constraint("Coincident", 1, 2, 2, 1))
sketch13.addConstraint(Sketcher.Constraint("Coincident", 2, 2, 3, 1))
sketch13.addConstraint(Sketcher.Constraint("Coincident", 3, 2, 4, 1))
sketch13.addConstraint(Sketcher.Constraint("Coincident", 4, 2, 5, 1))
sketch13.addConstraint(Sketcher.Constraint("Coincident", 5, 2, 6, 1))
sketch13.addConstraint(Sketcher.Constraint("Coincident", 6, 2, 7, 1))
sketch13.addConstraint(Sketcher.Constraint("Coincident", 7, 2, 0, 1))
sketch13.addConstraint(Sketcher.Constraint("Horizontal", 0))
sketch13.addConstraint(Sketcher.Constraint("Vertical", 1))
sketch13.addConstraint(Sketcher.Constraint("Horizontal", 2))
sketch13.addConstraint(Sketcher.Constraint("Vertical", 3))
sketch13.addConstraint(Sketcher.Constraint("Horizontal", 4))
sketch13.addConstraint(Sketcher.Constraint("Vertical", 5))
sketch13.addConstraint(Sketcher.Constraint("Horizontal", 6))
sketch13.addConstraint(Sketcher.Constraint("Vertical", 7))
sketch13.addConstraint(Sketcher.Constraint("Symmetric", 4, 2, 6, 2, -1, 1))
sketch13.addConstraint(Sketcher.Constraint("Symmetric", 0, 2, 3, 2, -2))
sketch13.addConstraint(Sketcher.Constraint("DistanceX", 0, 1, 0, 2, 2.0))
sketch13.addConstraint(Sketcher.Constraint("DistanceY", 1, 2, 1, 1, 104.0))
sketch13.addConstraint(Sketcher.Constraint("DistanceY", 5, 2, 5, 1, 102.0))
sketch13.addConstraint(Sketcher.Constraint("DistanceX", 2, 2, 2, 1, 87.7))
pad13 = doc.addObject("PartDesign::Pad", "Pad012")
body.addObject(pad13)
pad13.Profile = sketch13
pad13.Length = 32.7
pad13.Reversed = True

# Sketch on XZ plane
sketch14 = doc.addObject("Sketcher::SketchObject", "Sketch013")
body.addObject(sketch14)
sketch14.AttachmentSupport = (doc.XZ_Plane, [""])
sketch14.MapMode = "FlatFace"
sketch14.AttachmentOffset = App.Placement(V(0, 0, -32.7), App.Rotation())
sketch14.addGeometry(Part.LineSegment(V(-41.85, 51, 0), V(-39.85, 51, 0)), False)
sketch14.addGeometry(Part.LineSegment(V(-39.85, 51, 0), V(-39.85, -49, 0)), False)
sketch14.addGeometry(Part.LineSegment(V(-39.85, -49, 0), V(39.85, -49, 0)), False)
sketch14.addGeometry(Part.LineSegment(V(39.85, -49, 0), V(39.85, 51, 0)), False)
sketch14.addGeometry(Part.LineSegment(V(39.85, 51, 0), V(41.85, 51, 0)), False)
sketch14.addGeometry(Part.LineSegment(V(41.85, 51, 0), V(41.85, -51, 0)), False)
sketch14.addGeometry(Part.LineSegment(V(41.85, -51, 0), V(-41.85, -51, 0)), False)
sketch14.addGeometry(Part.LineSegment(V(-41.85, -51, 0), V(-41.85, 51, 0)), False)
sketch14.addConstraint(Sketcher.Constraint("Coincident", 0, 2, 1, 1))
sketch14.addConstraint(Sketcher.Constraint("Coincident", 1, 2, 2, 1))
sketch14.addConstraint(Sketcher.Constraint("Coincident", 2, 2, 3, 1))
sketch14.addConstraint(Sketcher.Constraint("Coincident", 3, 2, 4, 1))
sketch14.addConstraint(Sketcher.Constraint("Coincident", 4, 2, 5, 1))
sketch14.addConstraint(Sketcher.Constraint("Coincident", 5, 2, 6, 1))
sketch14.addConstraint(Sketcher.Constraint("Coincident", 6, 2, 7, 1))
sketch14.addConstraint(Sketcher.Constraint("Coincident", 7, 2, 0, 1))
sketch14.addConstraint(Sketcher.Constraint("Horizontal", 0))
sketch14.addConstraint(Sketcher.Constraint("Vertical", 1))
sketch14.addConstraint(Sketcher.Constraint("Horizontal", 2))
sketch14.addConstraint(Sketcher.Constraint("Vertical", 3))
sketch14.addConstraint(Sketcher.Constraint("Horizontal", 4))
sketch14.addConstraint(Sketcher.Constraint("Vertical", 5))
sketch14.addConstraint(Sketcher.Constraint("Horizontal", 6))
sketch14.addConstraint(Sketcher.Constraint("Vertical", 7))
sketch14.addConstraint(Sketcher.Constraint("Symmetric", 4, 2, 6, 2, -1, 1))
sketch14.addConstraint(Sketcher.Constraint("Symmetric", 0, 2, 3, 2, -2))
sketch14.addConstraint(Sketcher.Constraint("DistanceX", 0, 1, 0, 2, 2.0))
sketch14.addConstraint(Sketcher.Constraint("DistanceY", 1, 2, 1, 1, 100.0))
sketch14.addConstraint(Sketcher.Constraint("DistanceY", 5, 2, 5, 1, 102.0))
sketch14.addConstraint(Sketcher.Constraint("DistanceX", 2, 1, 2, 2, 79.7))
pad14 = doc.addObject("PartDesign::Pad", "Pad013")
body.addObject(pad14)
pad14.Profile = sketch14
pad14.Length = 2

# Sketch on YZ plane
sketch15 = doc.addObject("Sketcher::SketchObject", "Sketch014")
body.addObject(sketch15)
sketch15.AttachmentSupport = (doc.YZ_Plane, [""])
sketch15.MapMode = "FlatFace"
sketch15.AttachmentOffset = App.Placement(V(0, 0, -18.2), App.Rotation())
sketch15.addGeometry(Part.LineSegment(V(0, 10.7, 0), V(10, 10.7, 0)), False)
sketch15.addGeometry(Part.LineSegment(V(10, 10.7, 0), V(0, 41.9, 0)), False)
sketch15.addGeometry(Part.LineSegment(V(0, 41.9, 0), V(0, 10.7, 0)), False)
sketch15.addConstraint(Sketcher.Constraint("Coincident", 0, 2, 1, 1))
sketch15.addConstraint(Sketcher.Constraint("Coincident", 1, 2, 2, 1))
sketch15.addConstraint(Sketcher.Constraint("Coincident", 2, 2, 0, 1))
sketch15.addConstraint(Sketcher.Constraint("Horizontal", 0))
sketch15.addConstraint(Sketcher.Constraint("Vertical", 2))
sketch15.addConstraint(Sketcher.Constraint("PointOnObject", 1, 2, -2))
sketch15.addConstraint(Sketcher.Constraint("DistanceX", 0, 1, 0, 2, 10.0))
sketch15.addConstraint(Sketcher.Constraint("DistanceY", 2, 2, 2, 1, 31.2))
sketch15.addConstraint(Sketcher.Constraint("DistanceY", -1, 1, 0, 2, 10.7))
pad15 = doc.addObject("PartDesign::Pad", "Pad014")
body.addObject(pad15)
pad15.Profile = sketch15
pad15.Length = 16.2

doc.recompute()
